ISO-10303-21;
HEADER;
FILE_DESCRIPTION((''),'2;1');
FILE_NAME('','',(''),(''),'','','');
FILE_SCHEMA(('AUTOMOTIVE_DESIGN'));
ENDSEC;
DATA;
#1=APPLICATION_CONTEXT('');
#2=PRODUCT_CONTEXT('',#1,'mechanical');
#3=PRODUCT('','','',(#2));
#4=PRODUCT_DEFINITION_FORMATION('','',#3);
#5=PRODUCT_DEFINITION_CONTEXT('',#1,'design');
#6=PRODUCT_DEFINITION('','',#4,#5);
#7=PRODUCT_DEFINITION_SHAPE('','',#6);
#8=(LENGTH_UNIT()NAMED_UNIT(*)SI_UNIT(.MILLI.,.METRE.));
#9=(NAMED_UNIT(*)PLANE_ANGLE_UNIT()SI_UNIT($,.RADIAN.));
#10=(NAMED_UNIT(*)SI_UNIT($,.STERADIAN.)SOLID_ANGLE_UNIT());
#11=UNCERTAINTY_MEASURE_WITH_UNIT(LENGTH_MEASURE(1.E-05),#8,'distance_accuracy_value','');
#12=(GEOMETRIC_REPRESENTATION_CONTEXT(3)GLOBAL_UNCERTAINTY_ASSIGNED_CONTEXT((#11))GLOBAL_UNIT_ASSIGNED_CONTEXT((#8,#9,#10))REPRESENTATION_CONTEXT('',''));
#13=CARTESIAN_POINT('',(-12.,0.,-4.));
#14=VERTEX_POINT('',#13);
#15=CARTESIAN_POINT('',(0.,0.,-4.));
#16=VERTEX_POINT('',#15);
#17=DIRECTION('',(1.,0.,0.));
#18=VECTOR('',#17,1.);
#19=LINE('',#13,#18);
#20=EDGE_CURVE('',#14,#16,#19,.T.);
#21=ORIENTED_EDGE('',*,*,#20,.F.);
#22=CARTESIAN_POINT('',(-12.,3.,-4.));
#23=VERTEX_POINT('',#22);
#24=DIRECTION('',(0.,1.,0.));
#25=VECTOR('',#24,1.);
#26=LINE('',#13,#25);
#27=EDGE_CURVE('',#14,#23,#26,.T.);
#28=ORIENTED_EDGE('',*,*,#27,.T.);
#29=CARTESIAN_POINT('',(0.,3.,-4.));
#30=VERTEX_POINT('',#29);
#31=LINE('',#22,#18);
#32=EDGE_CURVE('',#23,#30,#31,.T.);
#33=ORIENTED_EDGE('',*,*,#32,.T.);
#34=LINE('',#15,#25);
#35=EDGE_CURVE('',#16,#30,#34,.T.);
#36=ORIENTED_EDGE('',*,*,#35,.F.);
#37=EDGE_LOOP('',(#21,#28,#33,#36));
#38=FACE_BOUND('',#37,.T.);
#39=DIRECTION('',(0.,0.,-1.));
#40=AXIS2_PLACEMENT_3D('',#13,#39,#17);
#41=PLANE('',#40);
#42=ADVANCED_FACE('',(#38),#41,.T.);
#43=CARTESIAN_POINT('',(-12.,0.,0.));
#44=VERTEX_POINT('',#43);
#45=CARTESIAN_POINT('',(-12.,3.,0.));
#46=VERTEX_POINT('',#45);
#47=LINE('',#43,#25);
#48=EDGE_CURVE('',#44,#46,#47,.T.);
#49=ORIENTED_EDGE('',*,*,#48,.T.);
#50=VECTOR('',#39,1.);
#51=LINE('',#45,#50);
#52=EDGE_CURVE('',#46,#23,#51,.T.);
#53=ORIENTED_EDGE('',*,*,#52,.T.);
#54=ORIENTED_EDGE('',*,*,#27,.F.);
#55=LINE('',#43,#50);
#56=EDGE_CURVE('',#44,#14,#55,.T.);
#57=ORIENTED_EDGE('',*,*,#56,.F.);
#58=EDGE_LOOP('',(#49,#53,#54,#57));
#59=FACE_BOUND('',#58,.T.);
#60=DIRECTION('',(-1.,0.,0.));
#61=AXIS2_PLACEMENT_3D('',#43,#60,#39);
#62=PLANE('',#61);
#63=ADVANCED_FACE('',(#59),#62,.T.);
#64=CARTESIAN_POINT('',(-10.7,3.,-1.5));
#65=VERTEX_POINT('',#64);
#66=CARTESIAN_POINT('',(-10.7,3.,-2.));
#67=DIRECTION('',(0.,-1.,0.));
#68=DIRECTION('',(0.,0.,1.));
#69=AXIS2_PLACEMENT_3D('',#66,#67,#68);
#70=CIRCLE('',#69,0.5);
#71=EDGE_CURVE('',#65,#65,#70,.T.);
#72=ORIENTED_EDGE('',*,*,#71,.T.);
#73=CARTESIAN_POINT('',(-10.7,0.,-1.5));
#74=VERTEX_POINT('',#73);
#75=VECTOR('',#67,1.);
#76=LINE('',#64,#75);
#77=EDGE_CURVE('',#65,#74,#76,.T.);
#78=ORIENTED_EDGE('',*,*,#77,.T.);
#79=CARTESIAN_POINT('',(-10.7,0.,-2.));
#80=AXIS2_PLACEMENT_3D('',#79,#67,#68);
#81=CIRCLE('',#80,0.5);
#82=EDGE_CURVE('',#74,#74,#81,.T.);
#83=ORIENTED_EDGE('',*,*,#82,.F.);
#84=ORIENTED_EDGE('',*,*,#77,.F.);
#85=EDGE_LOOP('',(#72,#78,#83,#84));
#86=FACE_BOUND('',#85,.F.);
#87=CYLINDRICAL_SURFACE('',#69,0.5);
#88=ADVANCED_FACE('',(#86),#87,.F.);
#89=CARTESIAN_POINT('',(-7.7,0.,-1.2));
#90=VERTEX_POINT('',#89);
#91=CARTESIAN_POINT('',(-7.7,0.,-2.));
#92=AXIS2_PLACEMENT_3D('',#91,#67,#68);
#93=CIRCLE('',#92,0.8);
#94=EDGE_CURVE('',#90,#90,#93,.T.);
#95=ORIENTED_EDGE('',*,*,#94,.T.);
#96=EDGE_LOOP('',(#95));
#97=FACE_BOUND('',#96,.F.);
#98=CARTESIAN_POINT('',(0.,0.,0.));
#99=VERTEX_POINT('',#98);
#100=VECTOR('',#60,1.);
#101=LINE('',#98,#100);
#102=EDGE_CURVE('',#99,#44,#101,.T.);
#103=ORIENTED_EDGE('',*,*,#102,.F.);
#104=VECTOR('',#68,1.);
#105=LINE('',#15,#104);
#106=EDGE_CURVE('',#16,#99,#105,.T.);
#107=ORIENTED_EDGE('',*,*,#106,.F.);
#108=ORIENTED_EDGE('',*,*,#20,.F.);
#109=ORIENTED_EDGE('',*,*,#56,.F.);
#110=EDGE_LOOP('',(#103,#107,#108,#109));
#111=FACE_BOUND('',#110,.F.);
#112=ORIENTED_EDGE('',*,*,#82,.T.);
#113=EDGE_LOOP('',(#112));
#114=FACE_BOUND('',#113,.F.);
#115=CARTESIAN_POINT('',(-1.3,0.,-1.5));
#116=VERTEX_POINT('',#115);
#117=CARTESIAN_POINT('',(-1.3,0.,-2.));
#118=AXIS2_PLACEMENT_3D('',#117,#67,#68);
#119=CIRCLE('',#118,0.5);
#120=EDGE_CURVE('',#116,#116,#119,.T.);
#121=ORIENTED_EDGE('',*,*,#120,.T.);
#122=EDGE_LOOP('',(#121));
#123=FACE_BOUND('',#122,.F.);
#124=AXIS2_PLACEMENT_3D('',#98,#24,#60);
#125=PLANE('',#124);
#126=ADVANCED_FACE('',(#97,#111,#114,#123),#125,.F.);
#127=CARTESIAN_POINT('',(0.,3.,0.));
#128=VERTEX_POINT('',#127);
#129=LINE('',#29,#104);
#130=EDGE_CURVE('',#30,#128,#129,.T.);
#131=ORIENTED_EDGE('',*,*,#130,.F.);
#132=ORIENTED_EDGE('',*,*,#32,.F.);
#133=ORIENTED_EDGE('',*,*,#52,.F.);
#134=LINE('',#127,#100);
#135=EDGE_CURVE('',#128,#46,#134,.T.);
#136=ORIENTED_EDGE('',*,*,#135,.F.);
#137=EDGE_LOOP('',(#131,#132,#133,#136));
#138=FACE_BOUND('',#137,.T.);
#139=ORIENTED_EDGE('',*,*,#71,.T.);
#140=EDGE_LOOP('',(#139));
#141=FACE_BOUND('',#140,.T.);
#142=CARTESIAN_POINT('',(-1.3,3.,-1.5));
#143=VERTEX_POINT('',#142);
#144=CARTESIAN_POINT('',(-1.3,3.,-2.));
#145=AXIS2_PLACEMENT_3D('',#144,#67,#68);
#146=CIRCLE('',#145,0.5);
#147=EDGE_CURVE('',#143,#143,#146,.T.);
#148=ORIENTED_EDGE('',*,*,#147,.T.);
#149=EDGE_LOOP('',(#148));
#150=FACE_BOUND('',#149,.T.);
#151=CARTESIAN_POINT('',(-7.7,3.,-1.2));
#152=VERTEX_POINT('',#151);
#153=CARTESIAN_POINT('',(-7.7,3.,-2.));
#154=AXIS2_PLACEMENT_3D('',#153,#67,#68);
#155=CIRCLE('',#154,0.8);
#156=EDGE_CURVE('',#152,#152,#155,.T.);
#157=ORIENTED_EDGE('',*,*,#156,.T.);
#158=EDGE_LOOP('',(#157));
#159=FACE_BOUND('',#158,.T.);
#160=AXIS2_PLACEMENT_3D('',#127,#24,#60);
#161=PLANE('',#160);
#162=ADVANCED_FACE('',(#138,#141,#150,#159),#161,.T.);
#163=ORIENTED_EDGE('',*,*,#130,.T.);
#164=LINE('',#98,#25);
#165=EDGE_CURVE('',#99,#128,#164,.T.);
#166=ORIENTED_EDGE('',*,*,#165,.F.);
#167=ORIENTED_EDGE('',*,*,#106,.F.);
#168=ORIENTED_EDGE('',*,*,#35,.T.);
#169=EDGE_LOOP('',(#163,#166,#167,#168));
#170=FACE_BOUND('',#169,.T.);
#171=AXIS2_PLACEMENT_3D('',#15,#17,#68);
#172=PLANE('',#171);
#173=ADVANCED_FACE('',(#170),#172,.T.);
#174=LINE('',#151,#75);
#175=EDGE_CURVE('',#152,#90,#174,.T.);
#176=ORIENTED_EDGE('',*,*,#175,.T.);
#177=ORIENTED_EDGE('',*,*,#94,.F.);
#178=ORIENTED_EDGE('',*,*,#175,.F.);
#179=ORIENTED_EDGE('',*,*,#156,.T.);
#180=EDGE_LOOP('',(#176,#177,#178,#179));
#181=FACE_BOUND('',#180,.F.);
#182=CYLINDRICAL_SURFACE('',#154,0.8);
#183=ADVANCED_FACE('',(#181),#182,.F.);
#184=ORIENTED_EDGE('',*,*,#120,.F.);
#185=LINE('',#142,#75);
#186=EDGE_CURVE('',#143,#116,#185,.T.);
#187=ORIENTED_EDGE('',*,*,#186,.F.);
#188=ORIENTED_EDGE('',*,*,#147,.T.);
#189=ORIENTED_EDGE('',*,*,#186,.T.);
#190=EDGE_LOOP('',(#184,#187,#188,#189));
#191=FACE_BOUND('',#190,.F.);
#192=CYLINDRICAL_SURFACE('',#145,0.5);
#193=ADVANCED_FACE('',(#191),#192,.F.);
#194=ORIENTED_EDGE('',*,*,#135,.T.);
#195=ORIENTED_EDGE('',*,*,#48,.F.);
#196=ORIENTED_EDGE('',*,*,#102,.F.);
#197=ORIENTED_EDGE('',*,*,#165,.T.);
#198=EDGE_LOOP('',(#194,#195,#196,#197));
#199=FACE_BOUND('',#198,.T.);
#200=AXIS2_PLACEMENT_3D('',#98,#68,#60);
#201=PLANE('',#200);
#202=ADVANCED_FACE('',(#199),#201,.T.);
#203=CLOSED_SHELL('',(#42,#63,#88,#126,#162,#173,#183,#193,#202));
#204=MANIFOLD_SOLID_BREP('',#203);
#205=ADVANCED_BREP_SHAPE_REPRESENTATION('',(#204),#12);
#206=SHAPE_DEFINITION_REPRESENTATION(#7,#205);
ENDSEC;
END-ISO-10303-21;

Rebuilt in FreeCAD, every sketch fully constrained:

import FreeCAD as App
import Part
import Sketcher
from FreeCAD import Vector
Q = App.Units.Quantity

doc = App.newDocument("Part")
body = doc.addObject("PartDesign::Body", "Body")

# Sketch on XZ plane
sketch1 = body.newObject("Sketcher::SketchObject", "Sketch")
sketch1.AttachmentSupport = (doc.getObject("XZ_Plane"), [""])
sketch1.MapMode = "FlatFace"
sketch1.addGeometry([
    Part.LineSegment(Vector(-12, 0, 0), Vector(0, 0, 0)),
    Part.LineSegment(Vector(0, 0, 0), Vector(0, -4, 0)),
    Part.LineSegment(Vector(0, -4, 0), Vector(-12, -4, 0)),
    Part.LineSegment(Vector(-12, -4, 0), Vector(-12, 0, 0)),
], False)
sketch1.addConstraint([
    Sketcher.Constraint("Coincident", 0, 2, 1, 1),
    Sketcher.Constraint("Coincident", 1, 2, 2, 1),
    Sketcher.Constraint("Coincident", 2, 2, 3, 1),
    Sketcher.Constraint("Coincident", 3, 2, 0, 1),
    Sketcher.Constraint("Horizontal", 0),
    Sketcher.Constraint("Vertical", 1),
    Sketcher.Constraint("Horizontal", 2),
    Sketcher.Constraint("Vertical", 3),
    Sketcher.Constraint("Coincident", 0, 2, -1, 1),
    Sketcher.Constraint("DistanceX", 0, 1, 0, 2, Q("12 mm")),
    Sketcher.Constraint("DistanceY", 1, 2, 1, 1, Q("4 mm")),
])
pad1 = body.newObject("PartDesign::Pad", "Pad")
pad1.Profile = sketch1
pad1.Length = 3
pad1.Reversed = True

# Sketch on XZ plane
sketch2 = body.newObject("Sketcher::SketchObject", "Sketch001")
sketch2.AttachmentSupport = (doc.getObject("XZ_Plane"), [""])
sketch2.MapMode = "FlatFace"
sketch2.AttachmentOffset = App.Placement(Vector(0, 0, -3), App.Rotation())
sketch2.addGeometry([
    Part.Circle(Vector(-10.7, -2, 0), Vector(0, 0, 1), 0.5),
    Part.Circle(Vector(-1.3, -2, 0), Vector(0, 0, 1), 0.5),
], False)
sketch2.addConstraint([
    Sketcher.Constraint("Equal", 0, 1),
    Sketcher.Constraint("Horizontal", 0, 3, 1, 3),
    Sketcher.Constraint("Diameter", 0, Q("1 mm")),
    Sketcher.Constraint("DistanceY", 0, 3, -1, 1, Q("2 mm")),
    Sketcher.Constraint("DistanceX", 0, 3, -1, 1, Q("10.7 mm")),
    Sketcher.Constraint("DistanceX", 1, 3, -1, 1, Q("1.3 mm")),
])
doc.recompute()
hole = body.newObject("PartDesign::Hole", "Hole")
hole.Profile = sketch2
hole.ThreadType = "None"
hole.Diameter = 1
hole.DepthType = "ThroughAll"
hole.Reversed = True

# Sketch on XZ plane
sketch3 = body.newObject("Sketcher::SketchObject", "Sketch002")
sketch3.AttachmentSupport = (doc.getObject("XZ_Plane"), [""])
sketch3.MapMode = "FlatFace"
sketch3.AttachmentOffset = App.Placement(Vector(0, 0, -3), App.Rotation())
sketch3.addGeometry(Part.Circle(Vector(-7.7, -2, 0), Vector(0, 0, 1), 0.8), False)
sketch3.addConstraint([
    Sketcher.Constraint("Diameter", 0, Q("1.6 mm")),
    Sketcher.Constraint("DistanceY", 0, 3, -1, 1, Q("2 mm")),
    Sketcher.Constraint("DistanceX", 0, 3, -1, 1, Q("7.7 mm")),
])
doc.recompute()
hole2 = body.newObject("PartDesign::Hole", "Hole001")
hole2.Profile = sketch3
hole2.ThreadType = "None"
hole2.Diameter = 1.6
hole2.DepthType = "ThroughAll"
hole2.Reversed = True

doc.recompute()
